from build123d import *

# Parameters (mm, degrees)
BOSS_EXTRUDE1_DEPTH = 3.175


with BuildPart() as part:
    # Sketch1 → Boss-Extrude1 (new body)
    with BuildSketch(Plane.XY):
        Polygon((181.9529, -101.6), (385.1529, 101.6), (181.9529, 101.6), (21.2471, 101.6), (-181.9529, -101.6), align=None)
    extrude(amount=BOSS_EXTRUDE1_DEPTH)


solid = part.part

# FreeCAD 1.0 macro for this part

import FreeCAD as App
import Part
import Sketcher
Q = App.Units.Quantity

doc = App.newDocument("Part")
params = doc.addObject("Spreadsheet::Sheet", "Params")
for row, (alias, value) in enumerate([
    ("sketch1_width", "14.327 in"),
    ("pad1_length", "0.125 in"),
], start=1):
    params.set(f"A{row}", alias)
    params.set(f"B{row}", "=" + value)
    params.setAlias(f"B{row}", alias)

body = doc.addObject("PartDesign::Body", "Body")

# Sketch on XY plane
sketch1 = doc.addObject("Sketcher::SketchObject", "Sketch")
body.addObject(sketch1)
sketch1.AttachmentSupport = (doc.XY_Plane, [""])
sketch1.MapMode = "FlatFace"
sketch1.addGeometry(Part.LineSegment(App.Vector(182, -102, 0), App.Vector(385, 102, 0)), False)
sketch1.addGeometry(Part.LineSegment(App.Vector(385, 102, 0), App.Vector(21, 102, 0)), False)
sketch1.addGeometry(Part.LineSegment(App.Vector(21, 102, 0), App.Vector(-182, -102, 0)), False)
sketch1.addGeometry(Part.LineSegment(App.Vector(-182, -102, 0), App.Vector(182, -102, 0)), False)
sketch1.addConstraint(Sketcher.Constraint("Coincident", 0, 2, 1, 1))
sketch1.addConstraint(Sketcher.Constraint("Coincident", 1, 2, 2, 1))
sketch1.addConstraint(Sketcher.Constraint("Coincident", 2, 2, 3, 1))
sketch1.addConstraint(Sketcher.Constraint("Coincident", 3, 2, 0, 1))
sketch1.addConstraint(Sketcher.Constraint("Horizontal", 1))
sketch1.addConstraint(Sketcher.Constraint("Horizontal", 3))
sketch1.addConstraint(Sketcher.Constraint("Parallel", 0, 2))
sketch1.addConstraint(Sketcher.Constraint("DistanceY", -1, 1, 0, 2, Q("4 in")))
sketch1.addConstraint(Sketcher.Constraint("DistanceY", 2, 2, -1, 1, Q("4 in")))
sketch1.addConstraint(Sketcher.Constraint("Angle", 0, Q("45 deg")))
sketch1.addConstraint(Sketcher.Constraint("DistanceX", 1, 2, 1, 1, Q("14.327 in")))
sketch1.addConstraint(Sketcher.Constraint("DistanceX", -1, 1, 0, 2, Q("15.1635 in")))
sketch1.setExpression("Constraints[10]", "Params.sketch1_width")
pad1 = doc.addObject("PartDesign::Pad", "Pad")
body.addObject(pad1)
pad1.Profile = sketch1
pad1.setExpression("Length", "Params.pad1_length")

doc.recompute()
